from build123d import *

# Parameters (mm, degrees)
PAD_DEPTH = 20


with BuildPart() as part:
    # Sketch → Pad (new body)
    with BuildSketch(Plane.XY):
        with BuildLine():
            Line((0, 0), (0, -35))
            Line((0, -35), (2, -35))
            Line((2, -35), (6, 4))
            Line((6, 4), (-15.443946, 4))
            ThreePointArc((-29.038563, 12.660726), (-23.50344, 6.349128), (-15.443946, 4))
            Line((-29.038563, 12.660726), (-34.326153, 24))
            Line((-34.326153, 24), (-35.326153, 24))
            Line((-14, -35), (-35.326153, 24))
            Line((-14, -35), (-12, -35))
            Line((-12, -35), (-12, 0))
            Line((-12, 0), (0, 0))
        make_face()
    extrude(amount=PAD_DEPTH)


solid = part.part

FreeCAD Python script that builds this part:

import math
import FreeCAD as App
import Part
import Sketcher
from FreeCAD import Vector
Q = App.Units.Quantity

doc = App.newDocument("Part")
body = doc.addObject("PartDesign::Body", "Body")

sketch1 = body.newObject("Sketcher::SketchObject", "Sketch")
sketch1.AttachmentSupport = (doc.getObject("XY_Plane"), [""])
sketch1.MapMode = "FlatFace"
sketch1.addGeometry([
    Part.LineSegment(Vector(0, 0, 0), Vector(0, -35, 0)),
    Part.LineSegment(Vector(0, -35, 0), Vector(2, -35, 0)),
    Part.LineSegment(Vector(2, -35, 0), Vector(6, 4, 0)),
    Part.LineSegment(Vector(6, 4, 0), Vector(-15.4, 4, 0)),
    Part.ArcOfCircle(Part.Circle(Vector(-15.4, 19, 0), Vector(0, 0, 1), 15), math.radians(-155), math.radians(-90)),
    Part.LineSegment(Vector(-29, 12.7, 0), Vector(-34.3, 24, 0)),
    Part.LineSegment(Vector(-34.3, 24, 0), Vector(-35.3, 24, 0)),
    Part.LineSegment(Vector(-35.3, 24, 0), Vector(-14, -35, 0)),
    Part.LineSegment(Vector(-14, -35, 0), Vector(-12, -35, 0)),
    Part.LineSegment(Vector(-12, -35, 0), Vector(-12, 0, 0)),
    Part.LineSegment(Vector(-12, 0, 0), Vector(0, 0, 0)),
], False)
sketch1.addConstraint([
    Sketcher.Constraint("Coincident", 0, 2, 1, 1),
    Sketcher.Constraint("Coincident", 1, 2, 2, 1),
    Sketcher.Constraint("Coincident", 2, 2, 3, 1),
    Sketcher.Constraint("Tangent", 3, 2, 4, 2),
    Sketcher.Constraint("Tangent", 4, 1, 5, 1),
    Sketcher.Constraint("Coincident", 5, 2, 6, 1),
    Sketcher.Constraint("Coincident", 6, 2, 7, 1),
    Sketcher.Constraint("Coincident", 7, 2, 8, 1),
    Sketcher.Constraint("Coincident", 8, 2, 9, 1),
    Sketcher.Constraint("Coincident", 9, 2, 10, 1),
    Sketcher.Constraint("Coincident", 10, 2, 0, 1),
    Sketcher.Constraint("Vertical", 0),
    Sketcher.Constraint("Horizontal", 1),
    Sketcher.Constraint("Horizontal", 3),
    Sketcher.Constraint("Horizontal", 6),
    Sketcher.Constraint("Horizontal", 8),
    Sketcher.Constraint("Vertical", 9),
    Sketcher.Constraint("Horizontal", 10),
    Sketcher.Constraint("Coincident", 10, 2, -1, 1),
    Sketcher.Constraint("Horizontal", 1, 2, 7, 2),
    Sketcher.Constraint("Equal", 1, 8),
    Sketcher.Constraint("Radius", 4, Q("15 mm")),
    Sketcher.Constraint("DistanceX", 1, 1, 1, 2, Q("2 mm")),
    Sketcher.Constraint("DistanceX", 6, 2, 6, 1, Q("1 mm")),
    Sketcher.Constraint("DistanceX", 10, 1, 10, 2, Q("12 mm")),
    Sketcher.Constraint("DistanceY", 0, 2, 0, 1, Q("35 mm")),
    Sketcher.Constraint("Angle", 5, Q("114.999999 deg")),
    Sketcher.Constraint("DistanceY", -1, 1, 4, 3, Q("19 mm")),
    Sketcher.Constraint("DistanceX", -1, 1, 2, 2, Q("6 mm")),
    Sketcher.Constraint("DistanceY", -1, 1, 5, 2, Q("24 mm")),
    Sketcher.Constraint("DistanceX", 3, 2, 3, 1, Q("21.443946 mm")),
])
pad1 = body.newObject("PartDesign::Pad", "Pad")
pad1.Profile = sketch1
pad1.Length = 20

doc.recompute()
